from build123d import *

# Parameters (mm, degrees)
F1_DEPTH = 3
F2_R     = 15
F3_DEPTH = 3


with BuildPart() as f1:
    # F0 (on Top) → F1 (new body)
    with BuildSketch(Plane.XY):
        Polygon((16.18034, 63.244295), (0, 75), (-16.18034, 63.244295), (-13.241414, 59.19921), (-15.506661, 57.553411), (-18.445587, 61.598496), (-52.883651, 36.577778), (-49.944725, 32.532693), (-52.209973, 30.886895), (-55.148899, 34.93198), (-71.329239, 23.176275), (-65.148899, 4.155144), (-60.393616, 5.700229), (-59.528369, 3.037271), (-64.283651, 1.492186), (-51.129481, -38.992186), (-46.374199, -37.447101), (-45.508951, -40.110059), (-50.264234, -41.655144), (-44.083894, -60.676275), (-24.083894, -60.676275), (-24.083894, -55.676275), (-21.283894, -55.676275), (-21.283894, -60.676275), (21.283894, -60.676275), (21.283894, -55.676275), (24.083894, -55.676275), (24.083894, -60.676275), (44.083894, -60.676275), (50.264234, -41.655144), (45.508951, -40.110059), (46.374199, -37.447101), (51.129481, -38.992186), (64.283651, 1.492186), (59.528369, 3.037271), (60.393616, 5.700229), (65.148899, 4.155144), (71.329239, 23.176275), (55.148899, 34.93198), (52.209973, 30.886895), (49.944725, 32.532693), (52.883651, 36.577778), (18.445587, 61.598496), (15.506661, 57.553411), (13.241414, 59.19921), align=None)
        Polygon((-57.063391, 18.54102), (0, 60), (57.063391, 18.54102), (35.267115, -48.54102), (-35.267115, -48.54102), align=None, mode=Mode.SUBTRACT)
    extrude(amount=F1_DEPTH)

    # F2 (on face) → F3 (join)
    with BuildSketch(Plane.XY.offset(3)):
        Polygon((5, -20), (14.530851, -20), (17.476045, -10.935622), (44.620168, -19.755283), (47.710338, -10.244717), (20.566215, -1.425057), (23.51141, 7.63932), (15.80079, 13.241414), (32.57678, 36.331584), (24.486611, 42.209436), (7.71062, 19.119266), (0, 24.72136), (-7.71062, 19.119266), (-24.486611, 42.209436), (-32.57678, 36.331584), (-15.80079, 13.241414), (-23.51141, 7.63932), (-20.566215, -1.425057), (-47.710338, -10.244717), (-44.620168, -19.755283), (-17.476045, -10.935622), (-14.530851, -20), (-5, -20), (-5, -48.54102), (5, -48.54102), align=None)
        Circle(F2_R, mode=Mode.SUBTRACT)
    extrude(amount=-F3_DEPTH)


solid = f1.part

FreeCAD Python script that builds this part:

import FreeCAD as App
import Part
import Sketcher
Q = App.Units.Quantity


def add_polygon(sketch, points):
    """Adds a closed chain of lines whose ends are joined by coincident constraints."""
    first, n = sketch.GeometryCount, len(points)
    for a, b in zip(points, points[1:] + points[:1]):
        sketch.addGeometry(Part.LineSegment(App.Vector(*a, 0), App.Vector(*b, 0)), False)
    for i in range(n):
        sketch.addConstraint(Sketcher.Constraint("Coincident", first + i, 2, first + (i + 1) % n, 1))

doc = App.newDocument("Part")
body = doc.addObject("PartDesign::Body", "Body")

sketch1 = body.newObject("Sketcher::SketchObject", "Sketch")
sketch1.AttachmentSupport = (doc.getObject("XY_Plane"), [""])
sketch1.MapMode = "FlatFace"
add_polygon(sketch1, [(16.2, 63.2), (0, 75), (-16.2, 63.2), (-13.2, 59.2), (-15.5, 57.6), (-18.4, 61.6), (-52.9, 36.6), (-49.9, 32.5), (-52.2, 30.9), (-55.1, 34.9), (-71.3, 23.2), (-65.1, 4.2), (-60.4, 5.7), (-59.5, 3), (-64.3, 1.5), (-51.1, -39), (-46.4, -37.4), (-45.5, -40.1), (-50.3, -41.7), (-44.1, -60.7), (-24.1, -60.7), (-24.1, -55.7), (-21.3, -55.7), (-21.3, -60.7), (21.3, -60.7), (21.3, -55.7), (24.1, -55.7), (24.1, -60.7), (44.1, -60.7), (50.3, -41.7), (45.5, -40.1), (46.4, -37.4), (51.1, -39), (64.3, 1.5), (59.5, 3), (60.4, 5.7), (65.1, 4.2), (71.3, 23.2), (55.1, 34.9), (52.2, 30.9), (49.9, 32.5), (52.9, 36.6), (18.4, 61.6), (15.5, 57.6), (13.2, 59.2)])
add_polygon(sketch1, [(-35.3, -48.5), (-57.1, 18.5), (0, 60), (57.1, 18.5), (35.3, -48.5)])
sketch1.addConstraint([
    Sketcher.Constraint("Horizontal", 19),
    Sketcher.Constraint("Vertical", 20),
    Sketcher.Constraint("Horizontal", 21),
    Sketcher.Constraint("Vertical", 22),
    Sketcher.Constraint("Horizontal", 23),
    Sketcher.Constraint("Vertical", 24),
    Sketcher.Constraint("Horizontal", 25),
    Sketcher.Constraint("Vertical", 26),
    Sketcher.Constraint("Horizontal", 27),
    Sketcher.Constraint("Horizontal", 49),
    Sketcher.Constraint("Symmetric", 21, 2, 24, 2, -2),
    Sketcher.Constraint("Symmetric", 19, 2, 26, 2, -2),
    Sketcher.Constraint("Symmetric", 17, 2, 28, 2, -2),
    Sketcher.Constraint("Symmetric", 16, 2, 29, 2, -2),
    Sketcher.Constraint("Symmetric", 15, 2, 30, 2, -2),
    Sketcher.Constraint("Symmetric", 14, 2, 31, 2, -2),
    Sketcher.Constraint("Symmetric", 13, 2, 32, 2, -2),
    Sketcher.Constraint("Symmetric", 12, 2, 33, 2, -2),
    Sketcher.Constraint("Symmetric", 11, 2, 34, 2, -2),
    Sketcher.Constraint("Symmetric", 10, 2, 35, 2, -2),
    Sketcher.Constraint("Symmetric", 9, 2, 36, 2, -2),
    Sketcher.Constraint("Symmetric", 8, 2, 37, 2, -2),
    Sketcher.Constraint("Symmetric", 7, 2, 38, 2, -2),
    Sketcher.Constraint("Symmetric", 6, 2, 39, 2, -2),
    Sketcher.Constraint("Symmetric", 5, 2, 40, 2, -2),
    Sketcher.Constraint("Symmetric", 4, 2, 41, 2, -2),
    Sketcher.Constraint("Symmetric", 3, 2, 42, 2, -2),
    Sketcher.Constraint("Symmetric", 2, 2, 43, 2, -2),
    Sketcher.Constraint("Symmetric", 1, 2, 44, 2, -2),
    Sketcher.Constraint("Symmetric", 45, 2, 47, 2, -2),
    Sketcher.Constraint("PointOnObject", 0, 2, -2),
    Sketcher.Constraint("PointOnObject", 46, 2, -2),
    Sketcher.Constraint("Perpendicular", 1, 2),
    Sketcher.Constraint("Perpendicular", 2, 3),
    Sketcher.Constraint("Perpendicular", 3, 4),
    Sketcher.Constraint("Perpendicular", 4, 5),
    Sketcher.Constraint("Perpendicular", 5, 6),
    Sketcher.Constraint("Perpendicular", 6, 7),
    Sketcher.Constraint("Perpendicular", 7, 8),
    Sketcher.Constraint("Perpendicular", 8, 9),
    Sketcher.Constraint("Perpendicular", 10, 11),
    Sketcher.Constraint("Perpendicular", 11, 12),
    Sketcher.Constraint("Perpendicular", 12, 13),
    Sketcher.Constraint("Perpendicular", 13, 14),
    Sketcher.Constraint("Perpendicular", 14, 15),
    Sketcher.Constraint("Perpendicular", 15, 16),
    Sketcher.Constraint("Perpendicular", 16, 17),
    Sketcher.Constraint("Perpendicular", 17, 18),
    Sketcher.Constraint("Perpendicular", 28, 29),
    Sketcher.Constraint("Parallel", 18, 45),
    Sketcher.Constraint("Parallel", 9, 46),
    Sketcher.Constraint("Parallel", 36, 48),
    Sketcher.Constraint("Horizontal", 19, 2, 22, 2),
    Sketcher.Constraint("Equal", 2, 4),
    Sketcher.Constraint("Equal", 4, 6),
    Sketcher.Constraint("Equal", 3, 7),
    Sketcher.Constraint("Equal", 6, 8),
    Sketcher.Constraint("Equal", 1, 9),
    Sketcher.Constraint("Equal", 9, 10),
    Sketcher.Constraint("Equal", 8, 11),
    Sketcher.Constraint("Equal", 7, 12),
    Sketcher.Constraint("Equal", 11, 13),
    Sketcher.Constraint("Equal", 5, 14),
    Sketcher.Constraint("Equal", 13, 15),
    Sketcher.Constraint("Equal", 12, 16),
    Sketcher.Constraint("Equal", 15, 17),
    Sketcher.Constraint("Equal", 10, 18),
    Sketcher.Constraint("Equal", 45, 46),
    Sketcher.Constraint("DistanceX", 19, 1, 19, 2, Q("20 mm")),
    Sketcher.Constraint("DistanceY", 20, 1, 20, 2, Q("5 mm")),
    Sketcher.Constraint("Angle", 0, Q("144 deg")),
    Sketcher.Constraint("Angle", 10, Q("-72 deg")),
    Sketcher.Constraint("Distance", 0, Q("20 mm")),
    Sketcher.Constraint("Distance", 2, Q("5 mm")),
    Sketcher.Constraint("DistanceX", 21, 1, 21, 2, Q("2.8 mm")),
    Sketcher.Constraint("DistanceY", -1, 1, 0, 2, Q("75 mm")),
    Sketcher.Constraint("DistanceY", -1, 1, 46, 2, Q("60 mm")),
    Sketcher.Constraint("Distance", 3, Q("2.8 mm")),
    Sketcher.Constraint("DistanceX", 49, 2, 49, 1, Q("70.53423 mm")),
    Sketcher.Constraint("DistanceX", 8, 2, -1, 1, Q("55.148899 mm")),
])
pad1 = body.newObject("PartDesign::Pad", "Pad")
pad1.Profile = sketch1
pad1.Length = 3

sketch2 = body.newObject("Sketcher::SketchObject", "Sketch001")
sketch2.AttachmentSupport = (doc.getObject("XY_Plane"), [""])
sketch2.MapMode = "FlatFace"
sketch2.AttachmentOffset = App.Placement(App.Vector(0, 0, 3), App.Rotation())
add_polygon(sketch2, [(5, -20), (15, -20), (17, -11), (45, -20), (48, -10), (21, -1), (24, 8), (16, 13), (33, 36), (24, 42), (8, 19), (0, 25), (-8, 19), (-24, 42), (-33, 36), (-16, 13), (-24, 8), (-21, -1), (-48, -10), (-45, -20), (-17, -11), (-15, -20), (-5, -20), (-5, -49), (5, -49)])
sketch2.addGeometry(Part.Circle(App.Vector(0, 0, 0), App.Vector(0, 0, 1), 15), False)
sketch2.addConstraint([
    Sketcher.Constraint("Horizontal", 0),
    Sketcher.Constraint("Horizontal", 21),
    Sketcher.Constraint("Vertical", 22),
    Sketcher.Constraint("Horizontal", 23),
    Sketcher.Constraint("Vertical", 24),
    Sketcher.Constraint("Coincident", 25, 3, -1, 1),
    Sketcher.Constraint("Symmetric", 9, 2, 11, 2, -2),
    Sketcher.Constraint("Symmetric", 8, 2, 12, 2, -2),
    Sketcher.Constraint("Symmetric", 7, 2, 13, 2, -2),
    Sketcher.Constraint("Symmetric", 6, 2, 14, 2, -2),
    Sketcher.Constraint("Symmetric", 5, 2, 15, 2, -2),
    Sketcher.Constraint("Symmetric", 4, 2, 16, 2, -2),
    Sketcher.Constraint("Symmetric", 3, 2, 17, 2, -2),
    Sketcher.Constraint("Symmetric", 2, 2, 18, 2, -2),
    Sketcher.Constraint("Symmetric", 1, 2, 19, 2, -2),
    Sketcher.Constraint("Symmetric", 0, 2, 20, 2, -2),
    Sketcher.Constraint("PointOnObject", 10, 2, -2),
    Sketcher.Constraint("Perpendicular", 1, 2),
    Sketcher.Constraint("Perpendicular", 2, 3),
    Sketcher.Constraint("Perpendicular", 3, 4),
    Sketcher.Constraint("Perpendicular", 4, 5),
    Sketcher.Constraint("Perpendicular", 6, 7),
    Sketcher.Constraint("Perpendicular", 7, 8),
    Sketcher.Constraint("Perpendicular", 8, 9),
    Sketcher.Constraint("Perpendicular", 9, 10),
    Sketcher.Constraint("Equal", 0, 21),
    Sketcher.Constraint("Equal", 2, 4),
    Sketcher.Constraint("Equal", 1, 5),
    Sketcher.Constraint("Equal", 5, 6),
    Sketcher.Constraint("Equal", 4, 7),
    Sketcher.Constraint("Equal", 3, 8),
    Sketcher.Constraint("Equal", 7, 9),
    Sketcher.Constraint("Equal", 6, 10),
    Sketcher.Constraint("Diameter", 25, Q("30 mm")),
    Sketcher.Constraint("DistanceX", 23, 1, 23, 2, Q("10 mm")),
    Sketcher.Constraint("Angle", 1, Q("72.000005 deg")),
    Sketcher.Constraint("Angle", 6, Q("143.999997 deg")),
    Sketcher.Constraint("Distance", 3, Q("10.000001 mm")),
    Sketcher.Constraint("DistanceY", 0, 2, -1, 1, Q("20 mm")),
    Sketcher.Constraint("DistanceX", 0, 1, 0, 2, Q("9.530851 mm")),
    Sketcher.Constraint("DistanceY", 22, 2, 22, 1, Q("28.54102 mm")),
    Sketcher.Constraint("DistanceY", 3, 2, 7, 2, Q("46.576301 mm")),
])
pad2 = body.newObject("PartDesign::Pad", "Pad001")
pad2.Profile = sketch2
pad2.Length = 3
pad2.Reversed = True

doc.recompute()
